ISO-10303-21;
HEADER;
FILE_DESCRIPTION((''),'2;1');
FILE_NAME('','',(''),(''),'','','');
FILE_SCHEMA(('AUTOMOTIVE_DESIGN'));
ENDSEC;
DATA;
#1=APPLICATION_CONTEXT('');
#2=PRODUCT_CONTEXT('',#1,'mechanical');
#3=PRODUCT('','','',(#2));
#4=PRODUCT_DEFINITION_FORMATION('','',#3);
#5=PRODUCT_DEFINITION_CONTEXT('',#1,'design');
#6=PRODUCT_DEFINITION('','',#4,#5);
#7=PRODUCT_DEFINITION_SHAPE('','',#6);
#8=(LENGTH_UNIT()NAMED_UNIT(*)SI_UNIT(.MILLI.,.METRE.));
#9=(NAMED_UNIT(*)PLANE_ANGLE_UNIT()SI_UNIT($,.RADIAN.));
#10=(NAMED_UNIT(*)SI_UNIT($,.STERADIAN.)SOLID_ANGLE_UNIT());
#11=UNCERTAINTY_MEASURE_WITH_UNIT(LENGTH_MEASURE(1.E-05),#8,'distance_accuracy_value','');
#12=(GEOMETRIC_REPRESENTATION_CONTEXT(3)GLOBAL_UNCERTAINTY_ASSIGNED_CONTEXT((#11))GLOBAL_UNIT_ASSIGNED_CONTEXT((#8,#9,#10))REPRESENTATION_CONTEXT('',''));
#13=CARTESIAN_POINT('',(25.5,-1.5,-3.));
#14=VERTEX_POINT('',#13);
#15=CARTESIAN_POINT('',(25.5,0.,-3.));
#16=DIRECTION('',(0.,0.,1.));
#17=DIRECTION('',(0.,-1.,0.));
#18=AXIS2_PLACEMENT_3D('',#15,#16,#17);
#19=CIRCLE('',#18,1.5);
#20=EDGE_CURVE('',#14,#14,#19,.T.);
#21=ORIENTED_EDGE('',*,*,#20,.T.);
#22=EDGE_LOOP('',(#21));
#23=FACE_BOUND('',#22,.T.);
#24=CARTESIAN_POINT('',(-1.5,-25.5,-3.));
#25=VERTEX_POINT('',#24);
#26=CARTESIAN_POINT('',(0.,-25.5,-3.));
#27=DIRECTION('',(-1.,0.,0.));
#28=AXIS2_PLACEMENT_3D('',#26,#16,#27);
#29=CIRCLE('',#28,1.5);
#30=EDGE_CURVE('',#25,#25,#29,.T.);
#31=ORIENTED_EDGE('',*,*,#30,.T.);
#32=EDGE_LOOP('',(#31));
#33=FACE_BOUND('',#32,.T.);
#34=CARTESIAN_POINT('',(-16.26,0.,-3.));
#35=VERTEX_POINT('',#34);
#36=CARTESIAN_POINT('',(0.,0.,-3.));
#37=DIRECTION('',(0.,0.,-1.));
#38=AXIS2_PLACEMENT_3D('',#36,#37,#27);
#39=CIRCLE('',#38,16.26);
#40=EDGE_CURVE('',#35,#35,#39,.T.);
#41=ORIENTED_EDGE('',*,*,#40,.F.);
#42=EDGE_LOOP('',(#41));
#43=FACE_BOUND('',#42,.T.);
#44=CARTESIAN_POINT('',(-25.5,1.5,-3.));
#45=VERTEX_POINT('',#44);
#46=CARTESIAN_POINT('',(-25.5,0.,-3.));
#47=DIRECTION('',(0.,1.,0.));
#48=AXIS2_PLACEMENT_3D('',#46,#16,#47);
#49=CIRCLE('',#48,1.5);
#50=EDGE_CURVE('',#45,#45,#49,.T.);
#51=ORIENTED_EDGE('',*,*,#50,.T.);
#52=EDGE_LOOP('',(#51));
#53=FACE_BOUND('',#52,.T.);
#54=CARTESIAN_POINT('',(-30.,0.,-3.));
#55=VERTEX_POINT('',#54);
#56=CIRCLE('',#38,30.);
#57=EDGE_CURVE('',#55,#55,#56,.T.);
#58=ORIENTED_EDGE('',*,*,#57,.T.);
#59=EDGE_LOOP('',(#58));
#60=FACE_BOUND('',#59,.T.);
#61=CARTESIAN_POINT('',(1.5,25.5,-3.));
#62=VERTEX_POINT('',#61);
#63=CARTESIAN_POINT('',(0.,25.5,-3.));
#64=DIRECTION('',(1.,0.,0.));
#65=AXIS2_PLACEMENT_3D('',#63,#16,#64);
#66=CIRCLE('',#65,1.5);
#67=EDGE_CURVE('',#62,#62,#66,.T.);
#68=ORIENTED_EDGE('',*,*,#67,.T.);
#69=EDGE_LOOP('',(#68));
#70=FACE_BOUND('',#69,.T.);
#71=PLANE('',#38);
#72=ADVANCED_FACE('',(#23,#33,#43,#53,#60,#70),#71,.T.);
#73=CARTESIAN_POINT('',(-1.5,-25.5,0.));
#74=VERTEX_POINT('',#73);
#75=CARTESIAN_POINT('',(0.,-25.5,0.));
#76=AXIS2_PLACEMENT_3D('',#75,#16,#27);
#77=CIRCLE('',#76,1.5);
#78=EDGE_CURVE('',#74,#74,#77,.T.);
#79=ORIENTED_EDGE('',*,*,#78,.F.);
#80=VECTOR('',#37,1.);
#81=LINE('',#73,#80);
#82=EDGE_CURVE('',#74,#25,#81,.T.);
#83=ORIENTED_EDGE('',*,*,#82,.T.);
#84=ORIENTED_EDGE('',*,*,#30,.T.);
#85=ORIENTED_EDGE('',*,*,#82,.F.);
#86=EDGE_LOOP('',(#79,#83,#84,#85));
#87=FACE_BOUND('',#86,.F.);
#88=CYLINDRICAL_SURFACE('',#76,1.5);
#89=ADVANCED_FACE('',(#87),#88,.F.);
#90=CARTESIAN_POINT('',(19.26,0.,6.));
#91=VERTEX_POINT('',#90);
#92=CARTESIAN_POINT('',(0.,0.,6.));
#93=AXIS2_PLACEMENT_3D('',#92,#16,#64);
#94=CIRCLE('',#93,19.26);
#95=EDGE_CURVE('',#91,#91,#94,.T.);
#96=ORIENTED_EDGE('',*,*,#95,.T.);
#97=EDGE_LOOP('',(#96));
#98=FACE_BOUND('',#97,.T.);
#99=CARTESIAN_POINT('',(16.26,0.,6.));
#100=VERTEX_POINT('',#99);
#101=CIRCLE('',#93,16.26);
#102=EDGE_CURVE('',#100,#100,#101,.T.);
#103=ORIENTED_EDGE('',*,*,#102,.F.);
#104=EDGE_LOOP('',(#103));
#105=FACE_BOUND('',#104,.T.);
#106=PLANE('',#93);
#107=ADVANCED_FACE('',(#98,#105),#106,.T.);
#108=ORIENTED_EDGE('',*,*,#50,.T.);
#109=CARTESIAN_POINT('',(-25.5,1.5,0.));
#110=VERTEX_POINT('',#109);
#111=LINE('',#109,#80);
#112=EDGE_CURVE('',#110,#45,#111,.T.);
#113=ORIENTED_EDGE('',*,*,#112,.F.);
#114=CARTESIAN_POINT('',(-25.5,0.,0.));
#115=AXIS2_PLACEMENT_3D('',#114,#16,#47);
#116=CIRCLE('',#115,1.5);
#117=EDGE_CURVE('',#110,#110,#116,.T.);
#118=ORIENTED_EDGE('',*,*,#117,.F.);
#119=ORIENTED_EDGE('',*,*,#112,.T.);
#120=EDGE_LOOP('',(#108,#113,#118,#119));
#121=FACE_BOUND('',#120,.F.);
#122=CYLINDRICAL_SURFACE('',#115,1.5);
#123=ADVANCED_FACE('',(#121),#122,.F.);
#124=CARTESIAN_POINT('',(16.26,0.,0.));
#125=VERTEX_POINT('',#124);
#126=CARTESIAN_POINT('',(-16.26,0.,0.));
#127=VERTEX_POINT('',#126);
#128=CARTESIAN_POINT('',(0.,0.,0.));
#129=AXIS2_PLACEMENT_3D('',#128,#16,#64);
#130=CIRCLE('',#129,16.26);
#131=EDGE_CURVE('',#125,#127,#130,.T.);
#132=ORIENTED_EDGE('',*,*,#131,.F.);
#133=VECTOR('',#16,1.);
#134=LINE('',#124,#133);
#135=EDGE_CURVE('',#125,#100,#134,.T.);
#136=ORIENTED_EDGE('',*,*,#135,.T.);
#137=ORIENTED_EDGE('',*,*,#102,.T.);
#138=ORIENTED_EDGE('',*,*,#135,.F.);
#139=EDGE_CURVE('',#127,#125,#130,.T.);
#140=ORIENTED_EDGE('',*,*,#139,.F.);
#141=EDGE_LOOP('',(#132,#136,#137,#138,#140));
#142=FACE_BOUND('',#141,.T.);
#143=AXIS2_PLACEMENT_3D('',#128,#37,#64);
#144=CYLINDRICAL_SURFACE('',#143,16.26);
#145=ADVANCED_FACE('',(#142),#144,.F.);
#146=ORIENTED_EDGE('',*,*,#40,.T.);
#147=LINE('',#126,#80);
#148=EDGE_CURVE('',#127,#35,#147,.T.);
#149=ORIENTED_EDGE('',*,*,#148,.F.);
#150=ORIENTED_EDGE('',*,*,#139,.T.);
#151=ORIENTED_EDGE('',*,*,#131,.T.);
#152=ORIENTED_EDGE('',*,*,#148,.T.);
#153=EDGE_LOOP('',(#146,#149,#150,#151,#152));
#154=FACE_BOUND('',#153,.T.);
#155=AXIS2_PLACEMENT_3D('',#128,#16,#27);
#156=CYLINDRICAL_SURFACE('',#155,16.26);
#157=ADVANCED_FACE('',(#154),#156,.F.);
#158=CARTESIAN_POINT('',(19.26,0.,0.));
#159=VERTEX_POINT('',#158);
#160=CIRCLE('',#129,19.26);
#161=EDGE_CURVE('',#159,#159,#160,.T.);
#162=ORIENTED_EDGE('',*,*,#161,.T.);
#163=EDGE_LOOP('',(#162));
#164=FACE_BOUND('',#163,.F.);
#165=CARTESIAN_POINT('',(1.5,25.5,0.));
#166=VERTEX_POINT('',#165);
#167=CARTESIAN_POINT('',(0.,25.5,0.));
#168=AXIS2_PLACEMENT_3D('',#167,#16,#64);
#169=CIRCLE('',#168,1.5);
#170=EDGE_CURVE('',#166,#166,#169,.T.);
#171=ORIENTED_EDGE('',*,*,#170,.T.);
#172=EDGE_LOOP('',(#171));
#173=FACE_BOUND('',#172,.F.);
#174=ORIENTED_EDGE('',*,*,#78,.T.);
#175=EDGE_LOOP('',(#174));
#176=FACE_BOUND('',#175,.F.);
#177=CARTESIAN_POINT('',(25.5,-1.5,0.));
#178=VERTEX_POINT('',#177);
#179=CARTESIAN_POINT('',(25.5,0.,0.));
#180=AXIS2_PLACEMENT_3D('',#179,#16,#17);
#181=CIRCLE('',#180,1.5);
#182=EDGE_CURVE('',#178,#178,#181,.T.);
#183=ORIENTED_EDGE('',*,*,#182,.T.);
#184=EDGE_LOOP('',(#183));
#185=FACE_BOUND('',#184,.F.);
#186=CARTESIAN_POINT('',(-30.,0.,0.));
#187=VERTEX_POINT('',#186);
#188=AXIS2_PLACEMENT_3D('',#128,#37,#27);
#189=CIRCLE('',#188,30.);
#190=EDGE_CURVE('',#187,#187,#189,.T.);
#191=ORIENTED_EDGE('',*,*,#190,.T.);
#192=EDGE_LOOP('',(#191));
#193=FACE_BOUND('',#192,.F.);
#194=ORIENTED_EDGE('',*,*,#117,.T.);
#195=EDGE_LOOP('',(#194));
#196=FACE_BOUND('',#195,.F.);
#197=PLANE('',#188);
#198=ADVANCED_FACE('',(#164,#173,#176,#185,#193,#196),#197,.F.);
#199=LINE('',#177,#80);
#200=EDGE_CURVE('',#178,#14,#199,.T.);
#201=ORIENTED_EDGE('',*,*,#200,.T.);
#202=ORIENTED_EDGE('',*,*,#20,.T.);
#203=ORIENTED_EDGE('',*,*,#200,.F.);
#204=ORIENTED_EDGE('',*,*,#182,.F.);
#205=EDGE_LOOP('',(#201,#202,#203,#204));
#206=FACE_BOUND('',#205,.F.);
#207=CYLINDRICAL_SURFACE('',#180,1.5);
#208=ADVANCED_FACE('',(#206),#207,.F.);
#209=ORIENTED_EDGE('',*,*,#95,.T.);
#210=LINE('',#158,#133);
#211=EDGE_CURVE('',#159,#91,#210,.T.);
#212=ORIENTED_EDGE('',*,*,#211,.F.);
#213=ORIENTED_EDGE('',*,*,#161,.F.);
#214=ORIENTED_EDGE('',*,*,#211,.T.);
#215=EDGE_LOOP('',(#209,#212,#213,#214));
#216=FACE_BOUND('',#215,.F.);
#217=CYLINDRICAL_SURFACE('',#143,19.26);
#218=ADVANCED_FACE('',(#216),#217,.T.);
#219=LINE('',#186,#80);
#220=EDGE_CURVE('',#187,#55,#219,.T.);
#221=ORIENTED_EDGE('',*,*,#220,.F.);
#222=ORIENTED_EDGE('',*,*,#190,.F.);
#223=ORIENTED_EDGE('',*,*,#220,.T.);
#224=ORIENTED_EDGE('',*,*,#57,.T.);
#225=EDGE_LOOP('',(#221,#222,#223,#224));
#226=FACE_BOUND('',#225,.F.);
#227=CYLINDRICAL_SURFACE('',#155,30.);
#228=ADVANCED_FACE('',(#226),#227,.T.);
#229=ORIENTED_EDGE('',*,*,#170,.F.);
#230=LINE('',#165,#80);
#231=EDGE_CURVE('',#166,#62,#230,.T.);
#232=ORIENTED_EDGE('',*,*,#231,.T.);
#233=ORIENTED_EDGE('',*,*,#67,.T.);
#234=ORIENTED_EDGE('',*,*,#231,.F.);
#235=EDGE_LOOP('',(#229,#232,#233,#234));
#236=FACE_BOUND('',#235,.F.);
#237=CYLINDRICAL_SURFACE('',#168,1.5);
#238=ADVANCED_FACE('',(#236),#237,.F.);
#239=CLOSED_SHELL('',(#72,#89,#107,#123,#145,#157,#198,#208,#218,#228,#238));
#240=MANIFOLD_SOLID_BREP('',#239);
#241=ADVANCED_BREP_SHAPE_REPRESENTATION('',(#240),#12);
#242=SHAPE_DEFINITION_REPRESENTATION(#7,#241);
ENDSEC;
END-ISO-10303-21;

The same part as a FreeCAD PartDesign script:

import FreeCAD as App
import Part
import Sketcher
Q = App.Units.Quantity

doc = App.newDocument("Part")
body = doc.addObject("PartDesign::Body", "Body")

# Sketch on XY plane
sketch1 = body.newObject("Sketcher::SketchObject", "Sketch")
sketch1.AttachmentSupport = (doc.getObject("XY_Plane"), [""])
sketch1.MapMode = "FlatFace"
sketch1.addGeometry([
    Part.Circle(App.Vector(0, 0, 0), App.Vector(0, 0, 1), 19),
    Part.Circle(App.Vector(0, 0, 0), App.Vector(0, 0, 1), 16),
], False)
sketch1.addConstraint([
    Sketcher.Constraint("Coincident", 0, 3, -1, 1),
    Sketcher.Constraint("Coincident", 1, 3, -1, 1),
    Sketcher.Constraint("Diameter", 1, Q("32.52 mm")),
    Sketcher.Constraint("Diameter", 0, Q("38.52 mm")),
])
pad1 = body.newObject("PartDesign::Pad", "Pad")
pad1.Profile = sketch1
pad1.Length = 6

# Sketch on XY plane
sketch2 = body.newObject("Sketcher::SketchObject", "Sketch001")
sketch2.AttachmentSupport = (doc.getObject("XY_Plane"), [""])
sketch2.MapMode = "FlatFace"
sketch2.addGeometry([
    Part.Circle(App.Vector(0, 0, 0), App.Vector(0, 0, 1), 30),
    Part.Circle(App.Vector(0, 0, 0), App.Vector(0, 0, 1), 16),
], False)
sketch2.addConstraint([
    Sketcher.Constraint("Coincident", 0, 3, -1, 1),
    Sketcher.Constraint("Coincident", 1, 3, -1, 1),
    Sketcher.Constraint("Diameter", 0, Q("60 mm")),
    Sketcher.Constraint("Diameter", 1, Q("32.52 mm")),
])
pad2 = body.newObject("PartDesign::Pad", "Pad001")
pad2.Profile = sketch2
pad2.Length = 3
pad2.Reversed = True

# Sketch on XY plane
sketch3 = body.newObject("Sketcher::SketchObject", "Sketch002")
sketch3.AttachmentSupport = (doc.getObject("XY_Plane"), [""])
sketch3.MapMode = "FlatFace"
sketch3.addGeometry(Part.Circle(App.Vector(0, 25.5, 0), App.Vector(0, 0, 1), 1.5), False)
sketch3.addConstraint([
    Sketcher.Constraint("PointOnObject", 0, 3, -2),
    Sketcher.Constraint("Diameter", 0, Q("3 mm")),
    Sketcher.Constraint("DistanceY", -1, 1, 0, 3, Q("25.5 mm")),
])
pocket1 = body.newObject("PartDesign::Pocket", "Pocket")
pocket1.Profile = sketch3
pocket1.Length = 3
doc.recompute()

polarpattern = body.newObject("PartDesign::PolarPattern", "PolarPattern")
polarpattern.Originals = [pocket1]
polarpattern.Axis = (doc.getObject("Z_Axis"), [""])
polarpattern.Angle = 360
polarpattern.Occurrences = 4
body.Tip = polarpattern

doc.recompute()
